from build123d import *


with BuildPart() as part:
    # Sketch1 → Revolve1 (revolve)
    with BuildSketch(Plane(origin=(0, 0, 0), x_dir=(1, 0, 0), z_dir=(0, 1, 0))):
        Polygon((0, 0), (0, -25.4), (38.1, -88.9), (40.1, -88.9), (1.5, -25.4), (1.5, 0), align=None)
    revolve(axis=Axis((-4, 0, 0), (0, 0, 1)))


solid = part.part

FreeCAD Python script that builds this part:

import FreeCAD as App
import Part
import Sketcher
Q = App.Units.Quantity


def add_polygon(sketch, points):
    """Adds a closed chain of lines whose ends are joined by coincident constraints."""
    first, n = sketch.GeometryCount, len(points)
    for a, b in zip(points, points[1:] + points[:1]):
        sketch.addGeometry(Part.LineSegment(App.Vector(*a, 0), App.Vector(*b, 0)), False)
    for i in range(n):
        sketch.addConstraint(Sketcher.Constraint("Coincident", first + i, 2, first + (i + 1) % n, 1))

doc = App.newDocument("Part")
params = doc.addObject("Spreadsheet::Sheet", "Params")
for row, (alias, value) in enumerate([
    ("sketch1_width", "2 mm"),
    ("sketch1_width2", "1.5 mm"),
    ("sketch1_height", "25.4 mm"),
    ("sketch1_height2", "88.9 mm"),
    ("revolution_angle", "360 deg"),
], start=1):
    params.set(f"A{row}", alias)
    params.set(f"B{row}", "=" + value)
    params.setAlias(f"B{row}", alias)

body = doc.addObject("PartDesign::Body", "Body")

# Sketch on XZ plane
sketch1 = body.newObject("Sketcher::SketchObject", "Sketch")
sketch1.AttachmentSupport = (doc.getObject("XZ_Plane"), [""])
sketch1.MapMode = "FlatFace"
add_polygon(sketch1, [(0, 0), (0, 25.4), (38.1, 88.9), (40.1, 88.9), (1.5, 25.4), (1.5, 0)])  # lines 0-5
sketch1.addGeometry(Part.LineSegment(App.Vector(-4, 0, 0), App.Vector(-4, 88.9, 0)), True)  # axis
sketch1.addConstraint([
    Sketcher.Constraint("Vertical", 0),
    Sketcher.Constraint("Horizontal", 2),
    Sketcher.Constraint("Vertical", 4),
    Sketcher.Constraint("Horizontal", 5),
    Sketcher.Constraint("Vertical", 6),
    Sketcher.Constraint("Coincident", 5, 2, -1, 1),
    Sketcher.Constraint("PointOnObject", 6, 1, -1),
    Sketcher.Constraint("Horizontal", 0, 2, 3, 2),
    Sketcher.Constraint("Horizontal", 2, 2, 6, 2),
    Sketcher.Constraint("DistanceX", 2, 1, 2, 2, Q("2 mm")),
    Sketcher.Constraint("DistanceX", 5, 2, 5, 1, Q("1.5 mm")),
    Sketcher.Constraint("DistanceY", 0, 1, 0, 2, Q("25.4 mm")),
    Sketcher.Constraint("DistanceY", 6, 1, 6, 2, Q("88.9 mm")),
    Sketcher.Constraint("DistanceX", 6, 1, -1, 1, Q("4 mm")),
    Sketcher.Constraint("DistanceX", -1, 1, 1, 2, Q("38.1 mm")),
])
sketch1.setExpression("Constraints[15]", "Params.sketch1_width")
sketch1.setExpression("Constraints[16]", "Params.sketch1_width2")
sketch1.setExpression("Constraints[17]", "Params.sketch1_height")
sketch1.setExpression("Constraints[18]", "Params.sketch1_height2")
revolution = body.newObject("PartDesign::Revolution", "Revolution")
revolution.Profile = sketch1
revolution.ReferenceAxis = (sketch1, ["Axis0"])
revolution.setExpression("Angle", "Params.revolution_angle")

doc.recompute()
